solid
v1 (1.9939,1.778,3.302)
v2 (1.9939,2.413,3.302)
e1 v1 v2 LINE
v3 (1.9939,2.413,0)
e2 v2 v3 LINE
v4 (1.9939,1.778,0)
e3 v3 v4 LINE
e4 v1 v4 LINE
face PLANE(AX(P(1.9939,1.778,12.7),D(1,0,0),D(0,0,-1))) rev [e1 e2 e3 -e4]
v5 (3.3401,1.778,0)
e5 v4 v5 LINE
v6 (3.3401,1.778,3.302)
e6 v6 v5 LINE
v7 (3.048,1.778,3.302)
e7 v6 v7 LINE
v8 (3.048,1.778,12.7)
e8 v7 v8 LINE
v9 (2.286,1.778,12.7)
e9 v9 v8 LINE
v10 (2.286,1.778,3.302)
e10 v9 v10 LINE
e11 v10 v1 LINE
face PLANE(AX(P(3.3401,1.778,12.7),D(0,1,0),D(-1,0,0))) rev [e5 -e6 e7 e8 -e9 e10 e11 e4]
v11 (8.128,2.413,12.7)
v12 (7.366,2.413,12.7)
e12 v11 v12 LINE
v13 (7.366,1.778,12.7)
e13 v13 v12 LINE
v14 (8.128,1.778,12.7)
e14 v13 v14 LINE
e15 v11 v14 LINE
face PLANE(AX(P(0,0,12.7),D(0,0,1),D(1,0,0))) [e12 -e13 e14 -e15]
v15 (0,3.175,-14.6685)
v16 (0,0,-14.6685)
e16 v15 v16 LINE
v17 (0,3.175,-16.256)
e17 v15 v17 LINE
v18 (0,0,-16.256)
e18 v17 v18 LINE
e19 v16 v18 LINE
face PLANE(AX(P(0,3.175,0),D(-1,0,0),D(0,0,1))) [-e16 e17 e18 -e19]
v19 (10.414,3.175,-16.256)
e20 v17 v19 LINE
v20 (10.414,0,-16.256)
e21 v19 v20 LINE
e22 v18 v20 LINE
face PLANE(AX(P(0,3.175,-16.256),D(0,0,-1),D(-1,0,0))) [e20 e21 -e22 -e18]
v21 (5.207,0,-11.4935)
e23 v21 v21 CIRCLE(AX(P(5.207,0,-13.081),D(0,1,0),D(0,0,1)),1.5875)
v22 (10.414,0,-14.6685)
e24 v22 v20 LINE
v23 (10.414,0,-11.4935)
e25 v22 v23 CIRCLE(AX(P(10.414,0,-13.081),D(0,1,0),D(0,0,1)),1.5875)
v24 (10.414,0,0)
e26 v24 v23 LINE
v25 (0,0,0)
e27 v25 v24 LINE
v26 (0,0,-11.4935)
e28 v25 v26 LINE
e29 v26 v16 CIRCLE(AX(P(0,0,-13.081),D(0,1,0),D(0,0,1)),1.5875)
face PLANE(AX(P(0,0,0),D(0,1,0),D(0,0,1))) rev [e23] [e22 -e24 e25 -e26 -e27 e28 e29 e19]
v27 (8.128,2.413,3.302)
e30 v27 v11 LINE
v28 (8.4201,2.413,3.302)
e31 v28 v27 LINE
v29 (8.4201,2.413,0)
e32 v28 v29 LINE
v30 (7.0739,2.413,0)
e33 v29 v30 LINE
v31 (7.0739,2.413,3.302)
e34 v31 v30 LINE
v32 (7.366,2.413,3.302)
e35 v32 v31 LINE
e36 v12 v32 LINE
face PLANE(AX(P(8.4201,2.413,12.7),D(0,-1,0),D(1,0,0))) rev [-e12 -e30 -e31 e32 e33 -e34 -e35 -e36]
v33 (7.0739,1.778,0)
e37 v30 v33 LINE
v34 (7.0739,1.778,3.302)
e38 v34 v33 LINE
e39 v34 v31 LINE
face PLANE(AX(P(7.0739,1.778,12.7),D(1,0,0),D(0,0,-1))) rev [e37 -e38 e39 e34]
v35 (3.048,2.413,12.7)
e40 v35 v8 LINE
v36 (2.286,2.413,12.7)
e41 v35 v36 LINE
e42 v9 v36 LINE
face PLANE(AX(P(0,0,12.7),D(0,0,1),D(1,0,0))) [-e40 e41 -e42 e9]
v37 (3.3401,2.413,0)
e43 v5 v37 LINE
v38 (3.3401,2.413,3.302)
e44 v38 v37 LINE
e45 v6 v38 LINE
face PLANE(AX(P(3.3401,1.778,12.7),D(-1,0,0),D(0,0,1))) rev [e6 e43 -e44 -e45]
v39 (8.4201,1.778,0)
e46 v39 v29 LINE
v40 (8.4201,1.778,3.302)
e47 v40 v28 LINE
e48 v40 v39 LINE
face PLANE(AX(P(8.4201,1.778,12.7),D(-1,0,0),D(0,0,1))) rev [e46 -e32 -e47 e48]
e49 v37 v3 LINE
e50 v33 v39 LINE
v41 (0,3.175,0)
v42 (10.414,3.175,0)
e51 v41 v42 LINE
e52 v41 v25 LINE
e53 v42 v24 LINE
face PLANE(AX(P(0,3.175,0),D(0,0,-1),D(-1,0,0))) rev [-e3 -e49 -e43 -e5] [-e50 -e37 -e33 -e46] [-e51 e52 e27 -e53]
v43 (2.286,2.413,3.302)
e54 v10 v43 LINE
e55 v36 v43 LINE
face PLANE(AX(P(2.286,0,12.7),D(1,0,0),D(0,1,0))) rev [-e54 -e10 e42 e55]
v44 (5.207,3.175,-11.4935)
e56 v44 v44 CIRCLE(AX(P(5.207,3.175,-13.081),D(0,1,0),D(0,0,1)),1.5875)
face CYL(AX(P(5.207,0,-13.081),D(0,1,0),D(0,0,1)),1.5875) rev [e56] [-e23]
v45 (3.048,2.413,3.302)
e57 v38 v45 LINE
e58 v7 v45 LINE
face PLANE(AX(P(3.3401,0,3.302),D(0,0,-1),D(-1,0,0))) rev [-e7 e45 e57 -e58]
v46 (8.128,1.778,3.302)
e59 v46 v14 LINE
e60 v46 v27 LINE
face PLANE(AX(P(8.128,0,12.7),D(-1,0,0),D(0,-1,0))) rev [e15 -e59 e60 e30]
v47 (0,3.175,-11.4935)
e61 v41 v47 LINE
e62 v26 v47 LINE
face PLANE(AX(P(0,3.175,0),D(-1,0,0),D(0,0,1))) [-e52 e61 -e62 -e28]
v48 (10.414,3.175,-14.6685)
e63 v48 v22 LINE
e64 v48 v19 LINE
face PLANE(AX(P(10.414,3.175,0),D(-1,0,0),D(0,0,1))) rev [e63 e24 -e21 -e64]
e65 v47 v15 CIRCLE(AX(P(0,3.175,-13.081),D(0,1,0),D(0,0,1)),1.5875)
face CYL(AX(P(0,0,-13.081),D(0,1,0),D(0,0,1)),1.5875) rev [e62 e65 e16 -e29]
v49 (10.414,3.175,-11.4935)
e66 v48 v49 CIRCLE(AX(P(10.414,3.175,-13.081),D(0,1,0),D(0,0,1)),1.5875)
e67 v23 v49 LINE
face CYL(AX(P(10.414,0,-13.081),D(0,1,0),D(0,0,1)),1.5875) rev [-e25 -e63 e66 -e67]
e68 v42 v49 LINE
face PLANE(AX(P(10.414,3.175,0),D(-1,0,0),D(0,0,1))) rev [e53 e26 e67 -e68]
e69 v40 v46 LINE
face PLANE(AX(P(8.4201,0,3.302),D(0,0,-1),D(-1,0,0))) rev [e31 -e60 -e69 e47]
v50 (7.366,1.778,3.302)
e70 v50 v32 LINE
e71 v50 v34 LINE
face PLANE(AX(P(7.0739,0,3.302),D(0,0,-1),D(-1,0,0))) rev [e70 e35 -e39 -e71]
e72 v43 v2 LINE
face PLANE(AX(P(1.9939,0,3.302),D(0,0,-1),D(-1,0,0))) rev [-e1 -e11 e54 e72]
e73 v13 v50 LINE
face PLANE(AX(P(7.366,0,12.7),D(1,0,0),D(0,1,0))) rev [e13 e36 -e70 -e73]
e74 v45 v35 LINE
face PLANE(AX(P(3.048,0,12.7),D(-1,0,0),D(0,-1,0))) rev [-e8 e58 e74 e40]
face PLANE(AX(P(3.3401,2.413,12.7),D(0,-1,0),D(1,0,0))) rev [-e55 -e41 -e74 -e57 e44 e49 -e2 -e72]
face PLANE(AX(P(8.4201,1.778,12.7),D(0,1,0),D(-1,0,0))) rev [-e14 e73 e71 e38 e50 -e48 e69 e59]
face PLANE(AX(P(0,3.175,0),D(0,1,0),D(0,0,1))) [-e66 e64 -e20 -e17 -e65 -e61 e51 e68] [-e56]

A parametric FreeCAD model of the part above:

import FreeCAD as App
import Part
import Sketcher

V = App.Vector
Q = App.Units.Quantity

doc = App.newDocument("Part")
body = doc.addObject("PartDesign::Body", "Body")

sketch1 = doc.addObject("Sketcher::SketchObject", "Sketch")
body.addObject(sketch1)
sketch1.AttachmentSupport = (doc.XZ_Plane, [""])
sketch1.MapMode = "FlatFace"
sketch1.addGeometry(Part.LineSegment(V(0, -16, 0), V(0, 0, 0)), False)
sketch1.addGeometry(Part.LineSegment(V(0, 0, 0), V(10, 0, 0)), False)
sketch1.addGeometry(Part.LineSegment(V(10, 0, 0), V(10, -16, 0)), False)
sketch1.addGeometry(Part.LineSegment(V(10, -16, 0), V(0, -16, 0)), False)
sketch1.addConstraint(Sketcher.Constraint("Coincident", 0, 2, 1, 1))
sketch1.addConstraint(Sketcher.Constraint("Coincident", 1, 2, 2, 1))
sketch1.addConstraint(Sketcher.Constraint("Coincident", 2, 2, 3, 1))
sketch1.addConstraint(Sketcher.Constraint("Coincident", 3, 2, 0, 1))
sketch1.addConstraint(Sketcher.Constraint("Vertical", 0))
sketch1.addConstraint(Sketcher.Constraint("Horizontal", 1))
sketch1.addConstraint(Sketcher.Constraint("Vertical", 2))
sketch1.addConstraint(Sketcher.Constraint("Horizontal", 3))
sketch1.addConstraint(Sketcher.Constraint("Coincident", 0, 2, -1, 1))
sketch1.addConstraint(Sketcher.Constraint("DistanceX", 1, 1, 1, 2, Q("0.41 in")))
sketch1.addConstraint(Sketcher.Constraint("DistanceY", 0, 1, 0, 2, Q("0.64 in")))
pad1 = doc.addObject("PartDesign::Pad", "Pad")
body.addObject(pad1)
pad1.Profile = sketch1
pad1.Length = Q("0.125 in")
pad1.Reversed = True

sketch2 = doc.addObject("Sketcher::SketchObject", "Sketch001")
body.addObject(sketch2)
sketch2.AttachmentSupport = (doc.XZ_Plane, [""])
sketch2.MapMode = "FlatFace"
sketch2.AttachmentOffset = App.Placement(V(0, 0, -0.125 * 25.4), App.Rotation())
sketch2.addGeometry(Part.Circle(V(5.2, -13.1, 0), V(0, 0, 1), 1.6), False)
sketch2.addGeometry(Part.Circle(V(10.4, -13.1, 0), V(0, 0, 1), 1.6), False)
sketch2.addGeometry(Part.Circle(V(0, -13.1, 0), V(0, 0, 1), 1.6), False)
sketch2.addConstraint(Sketcher.Constraint("Equal", 0, 1))
sketch2.addConstraint(Sketcher.Constraint("Equal", 1, 2))
sketch2.addConstraint(Sketcher.Constraint("PointOnObject", 2, 3, -2))
sketch2.addConstraint(Sketcher.Constraint("Horizontal", 0, 3, 1, 3))
sketch2.addConstraint(Sketcher.Constraint("Horizontal", 1, 3, 2, 3))
sketch2.addConstraint(Sketcher.Constraint("Diameter", 0, Q("0.125 in")))
sketch2.addConstraint(Sketcher.Constraint("DistanceX", -1, 1, 1, 3, Q("0.41 in")))
sketch2.addConstraint(Sketcher.Constraint("DistanceX", -1, 1, 0, 3, Q("0.205 in")))
sketch2.addConstraint(Sketcher.Constraint("DistanceY", 0, 3, -1, 1, Q("0.515 in")))
pocket1 = doc.addObject("PartDesign::Pocket", "Pocket")
body.addObject(pocket1)
pocket1.Profile = sketch2
pocket1.Length = Q("0.125 in")
pocket1.Reversed = True

sketch3 = doc.addObject("Sketcher::SketchObject", "Sketch002")
body.addObject(sketch3)
sketch3.AttachmentSupport = (doc.XY_Plane, [""])
sketch3.MapMode = "FlatFace"
sketch3.addGeometry(Part.LineSegment(V(7.1, 2.4, 0), V(7.1, 1.8, 0)), False)
sketch3.addGeometry(Part.LineSegment(V(7.1, 1.8, 0), V(8.4, 1.8, 0)), False)
sketch3.addGeometry(Part.LineSegment(V(8.4, 1.8, 0), V(8.4, 2.4, 0)), False)
sketch3.addGeometry(Part.LineSegment(V(8.4, 2.4, 0), V(7.1, 2.4, 0)), False)
sketch3.addGeometry(Part.LineSegment(V(2, 2.4, 0), V(2, 1.8, 0)), False)
sketch3.addGeometry(Part.LineSegment(V(2, 1.8, 0), V(3.3, 1.8, 0)), False)
sketch3.addGeometry(Part.LineSegment(V(3.3, 1.8, 0), V(3.3, 2.4, 0)), False)
sketch3.addGeometry(Part.LineSegment(V(3.3, 2.4, 0), V(2, 2.4, 0)), False)
sketch3.addConstraint(Sketcher.Constraint("Coincident", 0, 2, 1, 1))
sketch3.addConstraint(Sketcher.Constraint("Coincident", 1, 2, 2, 1))
sketch3.addConstraint(Sketcher.Constraint("Coincident", 2, 2, 3, 1))
sketch3.addConstraint(Sketcher.Constraint("Coincident", 3, 2, 0, 1))
sketch3.addConstraint(Sketcher.Constraint("Coincident", 4, 2, 5, 1))
sketch3.addConstraint(Sketcher.Constraint("Coincident", 5, 2, 6, 1))
sketch3.addConstraint(Sketcher.Constraint("Coincident", 6, 2, 7, 1))
sketch3.addConstraint(Sketcher.Constraint("Coincident", 7, 2, 4, 1))
sketch3.addConstraint(Sketcher.Constraint("Vertical", 0))
sketch3.addConstraint(Sketcher.Constraint("Horizontal", 1))
sketch3.addConstraint(Sketcher.Constraint("Vertical", 2))
sketch3.addConstraint(Sketcher.Constraint("Horizontal", 3))
sketch3.addConstraint(Sketcher.Constraint("Vertical", 4))
sketch3.addConstraint(Sketcher.Constraint("Horizontal", 5))
sketch3.addConstraint(Sketcher.Constraint("Vertical", 6))
sketch3.addConstraint(Sketcher.Constraint("Horizontal", 7))
sketch3.addConstraint(Sketcher.Constraint("Horizontal", 1, 2, 4, 2))
sketch3.addConstraint(Sketcher.Constraint("Horizontal", 3, 2, 6, 2))
sketch3.addConstraint(Sketcher.Constraint("Equal", 3, 5))
sketch3.addConstraint(Sketcher.Constraint("DistanceX", 4, 2, 0, 2, Q("0.2 in")))
sketch3.addConstraint(Sketcher.Constraint("DistanceX", 1, 1, 1, 2, Q("0.053 in")))
sketch3.addConstraint(Sketcher.Constraint("DistanceY", 0, 2, 0, 1, Q("0.025 in")))
sketch3.addConstraint(Sketcher.Constraint("DistanceY", -1, 1, 0, 2, Q("0.07 in")))
sketch3.addConstraint(Sketcher.Constraint("DistanceX", -1, 1, 0, 2, Q("0.2785 in")))
pad2 = doc.addObject("PartDesign::Pad", "Pad001")
body.addObject(pad2)
pad2.Profile = sketch3
pad2.Length = Q("0.5 in")

sketch4 = doc.addObject("Sketcher::SketchObject", "Sketch003")
body.addObject(sketch4)
sketch4.AttachmentSupport = (doc.XZ_Plane, [""])
sketch4.MapMode = "FlatFace"
sketch4.AttachmentOffset = App.Placement(V(0, 0, -0.095 * 25.4), App.Rotation())
sketch4.addGeometry(Part.LineSegment(V(1.99, 3.3, 0), V(1.99, 12.7, 0)), False)
sketch4.addGeometry(Part.LineSegment(V(1.99, 12.7, 0), V(2.29, 12.7, 0)), False)
sketch4.addGeometry(Part.LineSegment(V(2.29, 12.7, 0), V(2.29, 3.3, 0)), False)
sketch4.addGeometry(Part.LineSegment(V(2.29, 3.3, 0), V(1.99, 3.3, 0)), False)
sketch4.addGeometry(Part.LineSegment(V(3.05, 3.3, 0), V(3.05, 12.7, 0)), False)
sketch4.addGeometry(Part.LineSegment(V(3.05, 12.7, 0), V(3.34, 12.7, 0)), False)
sketch4.addGeometry(Part.LineSegment(V(3.34, 12.7, 0), V(3.34, 3.3, 0)), False)
sketch4.addGeometry(Part.LineSegment(V(3.34, 3.3, 0), V(3.05, 3.3, 0)), False)
sketch4.addGeometry(Part.LineSegment(V(7.07, 3.3, 0), V(7.07, 12.7, 0)), False)
sketch4.addGeometry(Part.LineSegment(V(7.07, 12.7, 0), V(7.37, 12.7, 0)), False)
sketch4.addGeometry(Part.LineSegment(V(7.37, 12.7, 0), V(7.37, 3.3, 0)), False)
sketch4.addGeometry(Part.LineSegment(V(7.37, 3.3, 0), V(7.07, 3.3, 0)), False)
sketch4.addGeometry(Part.LineSegment(V(8.13, 3.3, 0), V(8.13, 12.7, 0)), False)
sketch4.addGeometry(Part.LineSegment(V(8.13, 12.7, 0), V(8.42, 12.7, 0)), False)
sketch4.addGeometry(Part.LineSegment(V(8.42, 12.7, 0), V(8.42, 3.3, 0)), False)
sketch4.addGeometry(Part.LineSegment(V(8.42, 3.3, 0), V(8.13, 3.3, 0)), False)
sketch4.addConstraint(Sketcher.Constraint("Coincident", 0, 2, 1, 1))
sketch4.addConstraint(Sketcher.Constraint("Coincident", 1, 2, 2, 1))
sketch4.addConstraint(Sketcher.Constraint("Coincident", 2, 2, 3, 1))
sketch4.addConstraint(Sketcher.Constraint("Coincident", 3, 2, 0, 1))
sketch4.addConstraint(Sketcher.Constraint("Coincident", 4, 2, 5, 1))
sketch4.addConstraint(Sketcher.Constraint("Coincident", 5, 2, 6, 1))
sketch4.addConstraint(Sketcher.Constraint("Coincident", 6, 2, 7, 1))
sketch4.addConstraint(Sketcher.Constraint("Coincident", 7, 2, 4, 1))
sketch4.addConstraint(Sketcher.Constraint("Coincident", 8, 2, 9, 1))
sketch4.addConstraint(Sketcher.Constraint("Coincident", 9, 2, 10, 1))
sketch4.addConstraint(Sketcher.Constraint("Coincident", 10, 2, 11, 1))
sketch4.addConstraint(Sketcher.Constraint("Coincident", 11, 2, 8, 1))
sketch4.addConstraint(Sketcher.Constraint("Coincident", 12, 2, 13, 1))
sketch4.addConstraint(Sketcher.Constraint("Coincident", 13, 2, 14, 1))
sketch4.addConstraint(Sketcher.Constraint("Coincident", 14, 2, 15, 1))
sketch4.addConstraint(Sketcher.Constraint("Coincident", 15, 2, 12, 1))
sketch4.addConstraint(Sketcher.Constraint("Vertical", 0))
sketch4.addConstraint(Sketcher.Constraint("Horizontal", 1))
sketch4.addConstraint(Sketcher.Constraint("Vertical", 2))
sketch4.addConstraint(Sketcher.Constraint("Horizontal", 3))
sketch4.addConstraint(Sketcher.Constraint("Vertical", 4))
sketch4.addConstraint(Sketcher.Constraint("Horizontal", 5))
sketch4.addConstraint(Sketcher.Constraint("Vertical", 6))
sketch4.addConstraint(Sketcher.Constraint("Horizontal", 7))
sketch4.addConstraint(Sketcher.Constraint("Vertical", 8))
sketch4.addConstraint(Sketcher.Constraint("Horizontal", 9))
sketch4.addConstraint(Sketcher.Constraint("Vertical", 10))
sketch4.addConstraint(Sketcher.Constraint("Horizontal", 11))
sketch4.addConstraint(Sketcher.Constraint("Vertical", 12))
sketch4.addConstraint(Sketcher.Constraint("Horizontal", 13))
sketch4.addConstraint(Sketcher.Constraint("Vertical", 14))
sketch4.addConstraint(Sketcher.Constraint("Horizontal", 15))
sketch4.addConstraint(Sketcher.Constraint("Horizontal", 1, 2, 4, 2))
sketch4.addConstraint(Sketcher.Constraint("Horizontal", 3, 2, 6, 2))
sketch4.addConstraint(Sketcher.Constraint("Horizontal", 5, 2, 8, 2))
sketch4.addConstraint(Sketcher.Constraint("Horizontal", 7, 2, 10, 2))
sketch4.addConstraint(Sketcher.Constraint("Horizontal", 9, 2, 12, 2))
sketch4.addConstraint(Sketcher.Constraint("Horizontal", 11, 2, 14, 2))
sketch4.addConstraint(Sketcher.Constraint("Equal", 3, 5))
sketch4.addConstraint(Sketcher.Constraint("Equal", 7, 9))
sketch4.addConstraint(Sketcher.Constraint("Equal", 11, 13))
sketch4.addConstraint(Sketcher.Constraint("DistanceY", 0, 1, 0, 2, Q("0.37 in")))
sketch4.addConstraint(Sketcher.Constraint("DistanceY", -1, 1, 0, 2, Q("0.5 in")))
sketch4.addConstraint(Sketcher.Constraint("DistanceX", 0, 2, 8, 2, Q("0.2 in")))
sketch4.addConstraint(Sketcher.Constraint("DistanceX", 4, 2, 12, 2, Q("0.2 in")))
sketch4.addConstraint(Sketcher.Constraint("DistanceX", -1, 1, 1, 2, Q("0.09 in")))
sketch4.addConstraint(Sketcher.Constraint("DistanceX", -1, 1, 4, 2, Q("0.12 in")))
sketch4.addConstraint(Sketcher.Constraint("DistanceX", 1, 1, 1, 2, Q("0.0115 in")))
pocket2 = doc.addObject("PartDesign::Pocket", "Pocket001")
body.addObject(pocket2)
pocket2.Profile = sketch4
pocket2.Type = "ThroughAll"
pocket2.Reversed = True

doc.recompute()
